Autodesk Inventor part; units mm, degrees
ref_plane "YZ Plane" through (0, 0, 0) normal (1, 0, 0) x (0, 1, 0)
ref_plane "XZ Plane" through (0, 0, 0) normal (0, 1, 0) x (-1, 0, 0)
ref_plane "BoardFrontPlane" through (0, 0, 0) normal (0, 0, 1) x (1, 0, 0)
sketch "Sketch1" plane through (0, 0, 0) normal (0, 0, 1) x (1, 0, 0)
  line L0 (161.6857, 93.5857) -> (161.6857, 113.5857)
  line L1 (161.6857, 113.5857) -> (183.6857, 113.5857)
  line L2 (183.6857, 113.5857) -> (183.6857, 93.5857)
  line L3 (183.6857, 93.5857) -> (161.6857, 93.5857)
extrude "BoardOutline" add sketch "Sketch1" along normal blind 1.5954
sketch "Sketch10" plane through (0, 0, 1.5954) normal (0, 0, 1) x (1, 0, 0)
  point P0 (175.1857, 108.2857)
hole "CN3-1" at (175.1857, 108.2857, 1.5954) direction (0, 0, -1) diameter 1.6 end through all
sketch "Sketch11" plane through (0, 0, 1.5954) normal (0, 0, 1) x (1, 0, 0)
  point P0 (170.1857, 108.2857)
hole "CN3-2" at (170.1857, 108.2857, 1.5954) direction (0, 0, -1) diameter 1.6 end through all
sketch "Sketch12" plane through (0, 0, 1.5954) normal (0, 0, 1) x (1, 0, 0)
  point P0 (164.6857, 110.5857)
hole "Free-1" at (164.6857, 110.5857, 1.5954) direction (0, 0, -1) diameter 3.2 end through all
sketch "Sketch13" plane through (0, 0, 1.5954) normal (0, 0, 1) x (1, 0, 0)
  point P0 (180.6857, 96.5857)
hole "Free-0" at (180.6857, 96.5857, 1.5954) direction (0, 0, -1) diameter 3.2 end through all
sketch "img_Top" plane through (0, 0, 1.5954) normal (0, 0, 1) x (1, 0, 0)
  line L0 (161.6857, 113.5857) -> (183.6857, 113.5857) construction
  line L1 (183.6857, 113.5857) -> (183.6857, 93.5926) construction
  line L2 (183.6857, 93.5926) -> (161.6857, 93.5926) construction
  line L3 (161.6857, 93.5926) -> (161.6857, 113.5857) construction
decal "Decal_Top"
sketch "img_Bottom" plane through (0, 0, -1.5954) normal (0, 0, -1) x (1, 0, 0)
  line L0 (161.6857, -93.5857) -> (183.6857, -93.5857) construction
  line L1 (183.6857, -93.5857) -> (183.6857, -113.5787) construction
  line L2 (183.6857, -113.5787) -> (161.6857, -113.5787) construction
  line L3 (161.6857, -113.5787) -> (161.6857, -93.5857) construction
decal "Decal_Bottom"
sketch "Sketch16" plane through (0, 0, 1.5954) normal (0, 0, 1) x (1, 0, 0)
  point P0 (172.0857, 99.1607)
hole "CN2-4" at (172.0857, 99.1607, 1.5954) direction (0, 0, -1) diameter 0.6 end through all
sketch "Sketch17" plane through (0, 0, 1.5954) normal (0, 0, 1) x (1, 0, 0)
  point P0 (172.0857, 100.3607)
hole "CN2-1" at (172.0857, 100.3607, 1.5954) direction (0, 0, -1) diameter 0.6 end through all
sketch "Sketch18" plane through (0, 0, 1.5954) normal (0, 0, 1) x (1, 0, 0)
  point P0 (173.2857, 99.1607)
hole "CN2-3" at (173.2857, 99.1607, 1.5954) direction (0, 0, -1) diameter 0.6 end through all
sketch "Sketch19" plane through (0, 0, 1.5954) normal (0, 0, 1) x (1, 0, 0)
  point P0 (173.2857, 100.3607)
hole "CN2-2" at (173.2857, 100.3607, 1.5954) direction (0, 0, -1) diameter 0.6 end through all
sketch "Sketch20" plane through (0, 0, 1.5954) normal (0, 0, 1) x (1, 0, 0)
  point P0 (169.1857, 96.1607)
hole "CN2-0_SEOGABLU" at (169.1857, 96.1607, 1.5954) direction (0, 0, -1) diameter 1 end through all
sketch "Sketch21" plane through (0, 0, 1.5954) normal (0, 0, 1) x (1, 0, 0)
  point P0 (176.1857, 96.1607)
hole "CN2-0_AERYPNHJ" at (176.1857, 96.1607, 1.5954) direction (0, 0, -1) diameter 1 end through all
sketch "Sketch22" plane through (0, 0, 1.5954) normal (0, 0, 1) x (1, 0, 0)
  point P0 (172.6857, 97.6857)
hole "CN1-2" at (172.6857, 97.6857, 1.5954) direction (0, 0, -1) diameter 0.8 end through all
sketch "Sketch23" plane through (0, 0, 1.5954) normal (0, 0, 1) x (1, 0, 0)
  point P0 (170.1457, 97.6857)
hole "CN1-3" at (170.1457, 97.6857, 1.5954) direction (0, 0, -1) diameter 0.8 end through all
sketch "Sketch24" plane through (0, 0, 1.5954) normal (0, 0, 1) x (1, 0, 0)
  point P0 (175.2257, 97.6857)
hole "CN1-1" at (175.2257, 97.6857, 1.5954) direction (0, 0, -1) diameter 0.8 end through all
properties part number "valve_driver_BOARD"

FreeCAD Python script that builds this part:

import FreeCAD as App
import Part
import Sketcher

V = App.Vector
Q = App.Units.Quantity

doc = App.newDocument("Part")
params = doc.addObject("Spreadsheet::Sheet", "Params")
for row, (alias, value) in enumerate([
    ("sketch1_width", "22 mm"),
    ("sketch1_height", "20 mm"),
    ("pad1_length", "1.5954 mm"),
    ("sketch2_diameter", "1.6 mm"),
    ("hole_diameter", "1.6 mm"),
    ("sketch3_diameter", "1.6 mm"),
    ("hole2_diameter", "1.6 mm"),
    ("sketch4_diameter", "3.2 mm"),
    ("hole3_diameter", "3.2 mm"),
    ("sketch5_diameter", "3.2 mm"),
    ("hole4_diameter", "3.2 mm"),
    ("sketch6_diameter", "0.6 mm"),
    ("hole5_diameter", "0.6 mm"),
    ("sketch7_diameter", "0.6 mm"),
    ("hole6_diameter", "0.6 mm"),
    ("sketch8_diameter", "0.6 mm"),
    ("hole7_diameter", "0.6 mm"),
    ("sketch9_diameter", "0.6 mm"),
    ("hole8_diameter", "0.6 mm"),
    ("sketch10_diameter", "1 mm"),
    ("hole9_diameter", "1 mm"),
    ("sketch11_diameter", "1 mm"),
    ("hole10_diameter", "1 mm"),
    ("sketch12_diameter", "0.8 mm"),
    ("hole11_diameter", "0.8 mm"),
    ("sketch13_diameter", "0.8 mm"),
    ("hole12_diameter", "0.8 mm"),
    ("sketch14_diameter", "0.8 mm"),
    ("hole13_diameter", "0.8 mm"),
], start=1):
    params.set(f"A{row}", alias)
    params.set(f"B{row}", "=" + value)
    params.setAlias(f"B{row}", alias)

body = doc.addObject("PartDesign::Body", "Body")

# Sketch on XY plane
sketch1 = body.newObject("Sketcher::SketchObject", "Sketch")
sketch1.AttachmentSupport = (doc.getObject("XY_Plane"), [""])
sketch1.MapMode = "FlatFace"
sketch1.addGeometry([
    Part.LineSegment(V(162, 114, 0), V(162, 94, 0)),
    Part.LineSegment(V(162, 94, 0), V(184, 94, 0)),
    Part.LineSegment(V(184, 94, 0), V(184, 114, 0)),
    Part.LineSegment(V(184, 114, 0), V(162, 114, 0)),
], False)
sketch1.addConstraint([
    Sketcher.Constraint("Coincident", 0, 2, 1, 1),
    Sketcher.Constraint("Coincident", 1, 2, 2, 1),
    Sketcher.Constraint("Coincident", 2, 2, 3, 1),
    Sketcher.Constraint("Coincident", 3, 2, 0, 1),
    Sketcher.Constraint("Vertical", 0),
    Sketcher.Constraint("Horizontal", 1),
    Sketcher.Constraint("Vertical", 2),
    Sketcher.Constraint("Horizontal", 3),
    Sketcher.Constraint("DistanceX", 1, 1, 1, 2, Q("22 mm")),
    Sketcher.Constraint("DistanceY", 0, 2, 0, 1, Q("20 mm")),
    Sketcher.Constraint("DistanceX", -1, 1, 0, 2, Q("161.6857 mm")),
    Sketcher.Constraint("DistanceY", -1, 1, 0, 2, Q("93.5857 mm")),
])
sketch1.setExpression("Constraints[8]", "Params.sketch1_width")
sketch1.setExpression("Constraints[9]", "Params.sketch1_height")
pad1 = body.newObject("PartDesign::Pad", "Pad")
pad1.Profile = sketch1
pad1.setExpression("Length", "Params.pad1_length")

# Sketch on XY plane
sketch2 = body.newObject("Sketcher::SketchObject", "Sketch001")
sketch2.AttachmentSupport = (doc.getObject("XY_Plane"), [""])
sketch2.MapMode = "FlatFace"
sketch2.AttachmentOffset = App.Placement(V(0, 0, 1.5954), App.Rotation())
sketch2.addGeometry(Part.Circle(V(175.2, 108.3, 0), V(0, 0, 1), 0.8), False)
sketch2.addConstraint([
    Sketcher.Constraint("Diameter", 0, Q("1.6 mm")),
    Sketcher.Constraint("DistanceX", -1, 1, 0, 3, Q("175.1857 mm")),
    Sketcher.Constraint("DistanceY", -1, 1, 0, 3, Q("108.2857 mm")),
])
sketch2.setExpression("Constraints[0]", "Params.sketch2_diameter")
doc.recompute()
hole = body.newObject("PartDesign::Hole", "Hole")
hole.Profile = sketch2
hole.ThreadType = "None"
hole.setExpression("Diameter", "Params.hole_diameter")
hole.DepthType = "ThroughAll"

# Sketch on XY plane
sketch3 = body.newObject("Sketcher::SketchObject", "Sketch002")
sketch3.AttachmentSupport = (doc.getObject("XY_Plane"), [""])
sketch3.MapMode = "FlatFace"
sketch3.AttachmentOffset = App.Placement(V(0, 0, 1.5954), App.Rotation())
sketch3.addGeometry(Part.Circle(V(170.2, 108.3, 0), V(0, 0, 1), 0.8), False)
sketch3.addConstraint([
    Sketcher.Constraint("Diameter", 0, Q("1.6 mm")),
    Sketcher.Constraint("DistanceX", -1, 1, 0, 3, Q("170.1857 mm")),
    Sketcher.Constraint("DistanceY", -1, 1, 0, 3, Q("108.2857 mm")),
])
sketch3.setExpression("Constraints[0]", "Params.sketch3_diameter")
doc.recompute()
hole2 = body.newObject("PartDesign::Hole", "Hole001")
hole2.Profile = sketch3
hole2.ThreadType = "None"
hole2.setExpression("Diameter", "Params.hole2_diameter")
hole2.DepthType = "ThroughAll"

# Sketch on XY plane
sketch4 = body.newObject("Sketcher::SketchObject", "Sketch003")
sketch4.AttachmentSupport = (doc.getObject("XY_Plane"), [""])
sketch4.MapMode = "FlatFace"
sketch4.AttachmentOffset = App.Placement(V(0, 0, 1.5954), App.Rotation())
sketch4.addGeometry(Part.Circle(V(164.7, 110.6, 0), V(0, 0, 1), 1.6), False)
sketch4.addConstraint([
    Sketcher.Constraint("Diameter", 0, Q("3.2 mm")),
    Sketcher.Constraint("DistanceX", -1, 1, 0, 3, Q("164.6857 mm")),
    Sketcher.Constraint("DistanceY", -1, 1, 0, 3, Q("110.5857 mm")),
])
sketch4.setExpression("Constraints[0]", "Params.sketch4_diameter")
doc.recompute()
hole3 = body.newObject("PartDesign::Hole", "Hole002")
hole3.Profile = sketch4
hole3.ThreadType = "None"
hole3.setExpression("Diameter", "Params.hole3_diameter")
hole3.DepthType = "ThroughAll"

# Sketch on XY plane
sketch5 = body.newObject("Sketcher::SketchObject", "Sketch004")
sketch5.AttachmentSupport = (doc.getObject("XY_Plane"), [""])
sketch5.MapMode = "FlatFace"
sketch5.AttachmentOffset = App.Placement(V(0, 0, 1.5954), App.Rotation())
sketch5.addGeometry(Part.Circle(V(180.7, 96.6, 0), V(0, 0, 1), 1.6), False)
sketch5.addConstraint([
    Sketcher.Constraint("Diameter", 0, Q("3.2 mm")),
    Sketcher.Constraint("DistanceX", -1, 1, 0, 3, Q("180.6857 mm")),
    Sketcher.Constraint("DistanceY", -1, 1, 0, 3, Q("96.5857 mm")),
])
sketch5.setExpression("Constraints[0]", "Params.sketch5_diameter")
doc.recompute()
hole4 = body.newObject("PartDesign::Hole", "Hole003")
hole4.Profile = sketch5
hole4.ThreadType = "None"
hole4.setExpression("Diameter", "Params.hole4_diameter")
hole4.DepthType = "ThroughAll"

# Sketch on XY plane
sketch6 = body.newObject("Sketcher::SketchObject", "Sketch005")
sketch6.AttachmentSupport = (doc.getObject("XY_Plane"), [""])
sketch6.MapMode = "FlatFace"
sketch6.AttachmentOffset = App.Placement(V(0, 0, 1.5954), App.Rotation())
sketch6.addGeometry(Part.Circle(V(172.09, 99.16, 0), V(0, 0, 1), 0.3), False)
sketch6.addConstraint([
    Sketcher.Constraint("Diameter", 0, Q("0.6 mm")),
    Sketcher.Constraint("DistanceX", -1, 1, 0, 3, Q("172.0857 mm")),
    Sketcher.Constraint("DistanceY", -1, 1, 0, 3, Q("99.1607 mm")),
])
sketch6.setExpression("Constraints[0]", "Params.sketch6_diameter")
doc.recompute()
hole5 = body.newObject("PartDesign::Hole", "Hole004")
hole5.Profile = sketch6
hole5.ThreadType = "None"
hole5.setExpression("Diameter", "Params.hole5_diameter")
hole5.DepthType = "ThroughAll"

# Sketch on XY plane
sketch7 = body.newObject("Sketcher::SketchObject", "Sketch006")
sketch7.AttachmentSupport = (doc.getObject("XY_Plane"), [""])
sketch7.MapMode = "FlatFace"
sketch7.AttachmentOffset = App.Placement(V(0, 0, 1.5954), App.Rotation())
sketch7.addGeometry(Part.Circle(V(172.09, 100.36, 0), V(0, 0, 1), 0.3), False)
sketch7.addConstraint([
    Sketcher.Constraint("Diameter", 0, Q("0.6 mm")),
    Sketcher.Constraint("DistanceX", -1, 1, 0, 3, Q("172.0857 mm")),
    Sketcher.Constraint("DistanceY", -1, 1, 0, 3, Q("100.3607 mm")),
])
sketch7.setExpression("Constraints[0]", "Params.sketch7_diameter")
doc.recompute()
hole6 = body.newObject("PartDesign::Hole", "Hole005")
hole6.Profile = sketch7
hole6.ThreadType = "None"
hole6.setExpression("Diameter", "Params.hole6_diameter")
hole6.DepthType = "ThroughAll"

# Sketch on XY plane
sketch8 = body.newObject("Sketcher::SketchObject", "Sketch007")
sketch8.AttachmentSupport = (doc.getObject("XY_Plane"), [""])
sketch8.MapMode = "FlatFace"
sketch8.AttachmentOffset = App.Placement(V(0, 0, 1.5954), App.Rotation())
sketch8.addGeometry(Part.Circle(V(173.29, 99.16, 0), V(0, 0, 1), 0.3), False)
sketch8.addConstraint([
    Sketcher.Constraint("Diameter", 0, Q("0.6 mm")),
    Sketcher.Constraint("DistanceX", -1, 1, 0, 3, Q("173.2857 mm")),
    Sketcher.Constraint("DistanceY", -1, 1, 0, 3, Q("99.1607 mm")),
])
sketch8.setExpression("Constraints[0]", "Params.sketch8_diameter")
doc.recompute()
hole7 = body.newObject("PartDesign::Hole", "Hole006")
hole7.Profile = sketch8
hole7.ThreadType = "None"
hole7.setExpression("Diameter", "Params.hole7_diameter")
hole7.DepthType = "ThroughAll"

# Sketch on XY plane
sketch9 = body.newObject("Sketcher::SketchObject", "Sketch008")
sketch9.AttachmentSupport = (doc.getObject("XY_Plane"), [""])
sketch9.MapMode = "FlatFace"
sketch9.AttachmentOffset = App.Placement(V(0, 0, 1.5954), App.Rotation())
sketch9.addGeometry(Part.Circle(V(173.29, 100.36, 0), V(0, 0, 1), 0.3), False)
sketch9.addConstraint([
    Sketcher.Constraint("Diameter", 0, Q("0.6 mm")),
    Sketcher.Constraint("DistanceX", -1, 1, 0, 3, Q("173.2857 mm")),
    Sketcher.Constraint("DistanceY", -1, 1, 0, 3, Q("100.3607 mm")),
])
sketch9.setExpression("Constraints[0]", "Params.sketch9_diameter")
doc.recompute()
hole8 = body.newObject("PartDesign::Hole", "Hole007")
hole8.Profile = sketch9
hole8.ThreadType = "None"
hole8.setExpression("Diameter", "Params.hole8_diameter")
hole8.DepthType = "ThroughAll"

# Sketch on XY plane
sketch10 = body.newObject("Sketcher::SketchObject", "Sketch009")
sketch10.AttachmentSupport = (doc.getObject("XY_Plane"), [""])
sketch10.MapMode = "FlatFace"
sketch10.AttachmentOffset = App.Placement(V(0, 0, 1.5954), App.Rotation())
sketch10.addGeometry(Part.Circle(V(169.2, 96.2, 0), V(0, 0, 1), 0.5), False)
sketch10.addConstraint([
    Sketcher.Constraint("Diameter", 0, Q("1 mm")),
    Sketcher.Constraint("DistanceX", -1, 1, 0, 3, Q("169.1857 mm")),
    Sketcher.Constraint("DistanceY", -1, 1, 0, 3, Q("96.1607 mm")),
])
sketch10.setExpression("Constraints[0]", "Params.sketch10_diameter")
doc.recompute()
hole9 = body.newObject("PartDesign::Hole", "Hole008")
hole9.Profile = sketch10
hole9.ThreadType = "None"
hole9.setExpression("Diameter", "Params.hole9_diameter")
hole9.DepthType = "ThroughAll"

# Sketch on XY plane
sketch11 = body.newObject("Sketcher::SketchObject", "Sketch010")
sketch11.AttachmentSupport = (doc.getObject("XY_Plane"), [""])
sketch11.MapMode = "FlatFace"
sketch11.AttachmentOffset = App.Placement(V(0, 0, 1.5954), App.Rotation())
sketch11.addGeometry(Part.Circle(V(176.2, 96.2, 0), V(0, 0, 1), 0.5), False)
sketch11.addConstraint([
    Sketcher.Constraint("Diameter", 0, Q("1 mm")),
    Sketcher.Constraint("DistanceX", -1, 1, 0, 3, Q("176.1857 mm")),
    Sketcher.Constraint("DistanceY", -1, 1, 0, 3, Q("96.1607 mm")),
])
sketch11.setExpression("Constraints[0]", "Params.sketch11_diameter")
doc.recompute()
hole10 = body.newObject("PartDesign::Hole", "Hole009")
hole10.Profile = sketch11
hole10.ThreadType = "None"
hole10.setExpression("Diameter", "Params.hole10_diameter")
hole10.DepthType = "ThroughAll"

# Sketch on XY plane
sketch12 = body.newObject("Sketcher::SketchObject", "Sketch011")
sketch12.AttachmentSupport = (doc.getObject("XY_Plane"), [""])
sketch12.MapMode = "FlatFace"
sketch12.AttachmentOffset = App.Placement(V(0, 0, 1.5954), App.Rotation())
sketch12.addGeometry(Part.Circle(V(172.69, 97.69, 0), V(0, 0, 1), 0.4), False)
sketch12.addConstraint([
    Sketcher.Constraint("Diameter", 0, Q("0.8 mm")),
    Sketcher.Constraint("DistanceX", -1, 1, 0, 3, Q("172.6857 mm")),
    Sketcher.Constraint("DistanceY", -1, 1, 0, 3, Q("97.6857 mm")),
])
sketch12.setExpression("Constraints[0]", "Params.sketch12_diameter")
doc.recompute()
hole11 = body.newObject("PartDesign::Hole", "Hole010")
hole11.Profile = sketch12
hole11.ThreadType = "None"
hole11.setExpression("Diameter", "Params.hole11_diameter")
hole11.DepthType = "ThroughAll"

# Sketch on XY plane
sketch13 = body.newObject("Sketcher::SketchObject", "Sketch012")
sketch13.AttachmentSupport = (doc.getObject("XY_Plane"), [""])
sketch13.MapMode = "FlatFace"
sketch13.AttachmentOffset = App.Placement(V(0, 0, 1.5954), App.Rotation())
sketch13.addGeometry(Part.Circle(V(170.15, 97.69, 0), V(0, 0, 1), 0.4), False)
sketch13.addConstraint([
    Sketcher.Constraint("Diameter", 0, Q("0.8 mm")),
    Sketcher.Constraint("DistanceX", -1, 1, 0, 3, Q("170.1457 mm")),
    Sketcher.Constraint("DistanceY", -1, 1, 0, 3, Q("97.6857 mm")),
])
sketch13.setExpression("Constraints[0]", "Params.sketch13_diameter")
doc.recompute()
hole12 = body.newObject("PartDesign::Hole", "Hole011")
hole12.Profile = sketch13
hole12.ThreadType = "None"
hole12.setExpression("Diameter", "Params.hole12_diameter")
hole12.DepthType = "ThroughAll"

# Sketch on XY plane
sketch14 = body.newObject("Sketcher::SketchObject", "Sketch013")
sketch14.AttachmentSupport = (doc.getObject("XY_Plane"), [""])
sketch14.MapMode = "FlatFace"
sketch14.AttachmentOffset = App.Placement(V(0, 0, 1.5954), App.Rotation())
sketch14.addGeometry(Part.Circle(V(175.23, 97.69, 0), V(0, 0, 1), 0.4), False)
sketch14.addConstraint([
    Sketcher.Constraint("Diameter", 0, Q("0.8 mm")),
    Sketcher.Constraint("DistanceX", -1, 1, 0, 3, Q("175.2257 mm")),
    Sketcher.Constraint("DistanceY", -1, 1, 0, 3, Q("97.6857 mm")),
])
sketch14.setExpression("Constraints[0]", "Params.sketch14_diameter")
doc.recompute()
hole13 = body.newObject("PartDesign::Hole", "Hole012")
hole13.Profile = sketch14
hole13.ThreadType = "None"
hole13.setExpression("Diameter", "Params.hole13_diameter")
hole13.DepthType = "ThroughAll"

doc.recompute()
